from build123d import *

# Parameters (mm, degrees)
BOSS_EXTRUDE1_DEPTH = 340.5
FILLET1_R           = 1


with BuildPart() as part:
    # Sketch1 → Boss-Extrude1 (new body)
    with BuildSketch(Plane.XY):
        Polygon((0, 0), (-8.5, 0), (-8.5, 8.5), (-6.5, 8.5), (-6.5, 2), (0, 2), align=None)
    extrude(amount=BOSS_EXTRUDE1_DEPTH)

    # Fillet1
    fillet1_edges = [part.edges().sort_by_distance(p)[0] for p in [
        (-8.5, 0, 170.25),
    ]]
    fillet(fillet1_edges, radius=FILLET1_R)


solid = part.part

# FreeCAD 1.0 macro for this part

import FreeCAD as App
import Part
import Sketcher

V = App.Vector


def edges_at(feature, points):
    """Names of the edges that pass closest to the given points."""
    edges = feature.Shape.Edges
    near = lambda p: min(range(len(edges)), key=lambda i: edges[i].distToShape(Part.Vertex(*p))[0])
    return sorted({f"Edge{near(p) + 1}" for p in points})

doc = App.newDocument("Part")
body = doc.addObject("PartDesign::Body", "Body")

# Sketch on XY plane
sketch1 = body.newObject("Sketcher::SketchObject", "Sketch")
sketch1.AttachmentSupport = (doc.getObject("XY_Plane"), [""])
sketch1.MapMode = "FlatFace"
sketch1.addGeometry([
    Part.LineSegment(V(-8.5, 0, 0), V(0, 0, 0)),  # 0
    Part.LineSegment(V(0, 0, 0), V(0, 2, 0)),  # 1
    Part.LineSegment(V(0, 2, 0), V(-6.5, 2, 0)),  # 2
    Part.LineSegment(V(-6.5, 2, 0), V(-6.5, 8.5, 0)),  # 3
    Part.LineSegment(V(-6.5, 8.5, 0), V(-8.5, 8.5, 0)),  # 4
    Part.LineSegment(V(-8.5, 8.5, 0), V(-8.5, 0, 0)),  # 5
], False)
sketch1.addConstraint([
    Sketcher.Constraint("Coincident", 0, 2, 1, 1),
    Sketcher.Constraint("Coincident", 1, 2, 2, 1),
    Sketcher.Constraint("Coincident", 2, 2, 3, 1),
    Sketcher.Constraint("Coincident", 3, 2, 4, 1),
    Sketcher.Constraint("Coincident", 4, 2, 5, 1),
    Sketcher.Constraint("Coincident", 5, 2, 0, 1),
    Sketcher.Constraint("Horizontal", 0),
    Sketcher.Constraint("Vertical", 1),
    Sketcher.Constraint("Horizontal", 2),
    Sketcher.Constraint("Vertical", 3),
    Sketcher.Constraint("Horizontal", 4),
    Sketcher.Constraint("Vertical", 5),
    Sketcher.Constraint("Coincident", 0, 2, -1, 1),
    Sketcher.Constraint("Equal", 4, 1),
    Sketcher.Constraint("Equal", 2, 3),
    Sketcher.Constraint("DistanceX", 4, 2, 4, 1, 2.0),
    Sketcher.Constraint("DistanceX", 0, 1, 0, 2, 8.5),
])
pad1 = body.newObject("PartDesign::Pad", "Pad")
pad1.Profile = sketch1
pad1.Length = 340.5
doc.recompute()

fillet = body.newObject("PartDesign::Fillet", "Fillet")
fillet.Base = (pad1, edges_at(pad1, [(-8.5, 0, 170.25)]))
fillet.Radius = 1

doc.recompute()
